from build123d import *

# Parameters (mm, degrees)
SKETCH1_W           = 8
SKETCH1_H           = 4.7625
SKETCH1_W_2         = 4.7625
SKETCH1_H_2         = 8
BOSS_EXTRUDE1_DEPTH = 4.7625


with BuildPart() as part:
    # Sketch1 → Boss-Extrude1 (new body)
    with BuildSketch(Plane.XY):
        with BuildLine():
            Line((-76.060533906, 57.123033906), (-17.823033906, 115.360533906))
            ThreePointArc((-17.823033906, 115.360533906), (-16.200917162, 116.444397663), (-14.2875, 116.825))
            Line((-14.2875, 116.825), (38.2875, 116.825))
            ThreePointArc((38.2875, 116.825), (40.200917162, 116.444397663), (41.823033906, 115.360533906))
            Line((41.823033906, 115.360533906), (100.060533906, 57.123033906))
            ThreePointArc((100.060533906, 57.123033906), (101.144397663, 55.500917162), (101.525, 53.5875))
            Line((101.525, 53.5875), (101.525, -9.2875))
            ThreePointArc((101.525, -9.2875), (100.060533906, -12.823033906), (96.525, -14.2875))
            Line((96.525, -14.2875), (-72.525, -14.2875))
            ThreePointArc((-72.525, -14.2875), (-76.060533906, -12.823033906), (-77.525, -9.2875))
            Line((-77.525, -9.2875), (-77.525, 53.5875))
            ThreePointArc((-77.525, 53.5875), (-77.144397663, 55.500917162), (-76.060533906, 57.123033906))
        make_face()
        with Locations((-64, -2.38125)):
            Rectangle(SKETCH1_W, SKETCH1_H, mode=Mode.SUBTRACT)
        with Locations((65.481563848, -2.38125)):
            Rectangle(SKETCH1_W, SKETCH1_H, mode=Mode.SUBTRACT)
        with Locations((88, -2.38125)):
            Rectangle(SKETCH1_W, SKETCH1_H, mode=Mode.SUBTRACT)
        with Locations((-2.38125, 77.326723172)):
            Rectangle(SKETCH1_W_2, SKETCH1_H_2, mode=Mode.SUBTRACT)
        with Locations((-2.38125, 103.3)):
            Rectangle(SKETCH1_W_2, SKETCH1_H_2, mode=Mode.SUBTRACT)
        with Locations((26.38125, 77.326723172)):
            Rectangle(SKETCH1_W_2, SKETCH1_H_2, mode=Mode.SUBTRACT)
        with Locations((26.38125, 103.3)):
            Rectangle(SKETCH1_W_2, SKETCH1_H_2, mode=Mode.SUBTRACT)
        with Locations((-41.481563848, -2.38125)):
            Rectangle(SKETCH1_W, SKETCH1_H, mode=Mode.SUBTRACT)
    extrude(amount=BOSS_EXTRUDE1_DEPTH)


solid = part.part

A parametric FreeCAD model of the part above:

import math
import FreeCAD as App
import Part
import Sketcher
Q = App.Units.Quantity

doc = App.newDocument("Part")
body = doc.addObject("PartDesign::Body", "Body")

# Sketch on XY plane
sketch1 = body.newObject("Sketcher::SketchObject", "Sketch")
sketch1.AttachmentSupport = (doc.getObject("XY_Plane"), [""])
sketch1.MapMode = "FlatFace"
sketch1.addGeometry([
    Part.LineSegment(App.Vector(-17.8, 115.4, 0), App.Vector(-76.1, 57.1, 0)),  # 0
    Part.ArcOfCircle(Part.Circle(App.Vector(-72.5, 53.6, 0), App.Vector(0, 0, 1), 5), math.radians(135), math.radians(180)),  # 1
    Part.LineSegment(App.Vector(-77.5, 53.6, 0), App.Vector(-77.5, -9.3, 0)),  # 2
    Part.ArcOfCircle(Part.Circle(App.Vector(-72.5, -9.3, 0), App.Vector(0, 0, 1), 5), math.radians(180), math.radians(270)),  # 3
    Part.LineSegment(App.Vector(-72.5, -14.3, 0), App.Vector(96.5, -14.3, 0)),  # 4
    Part.ArcOfCircle(Part.Circle(App.Vector(96.5, -9.3, 0), App.Vector(0, 0, 1), 5), math.radians(-90), math.radians(0)),  # 5
    Part.LineSegment(App.Vector(101.5, -9.3, 0), App.Vector(101.5, 53.6, 0)),  # 6
    Part.ArcOfCircle(Part.Circle(App.Vector(96.5, 53.6, 0), App.Vector(0, 0, 1), 5), math.radians(0), math.radians(45)),  # 7
    Part.LineSegment(App.Vector(100.1, 57.1, 0), App.Vector(41.8, 115.4, 0)),  # 8
    Part.ArcOfCircle(Part.Circle(App.Vector(38.3, 111.8, 0), App.Vector(0, 0, 1), 5), math.radians(45), math.radians(90)),  # 9
    Part.LineSegment(App.Vector(38.3, 116.8, 0), App.Vector(-14.3, 116.8, 0)),  # 10
    Part.ArcOfCircle(Part.Circle(App.Vector(-14.3, 111.8, 0), App.Vector(0, 0, 1), 5), math.radians(90), math.radians(135)),  # 11
    Part.LineSegment(App.Vector(84, -4.8, 0), App.Vector(84, 0, 0)),  # 12
    Part.LineSegment(App.Vector(84, 0, 0), App.Vector(92, 0, 0)),  # 13
    Part.LineSegment(App.Vector(92, 0, 0), App.Vector(92, -4.8, 0)),  # 14
    Part.LineSegment(App.Vector(92, -4.8, 0), App.Vector(84, -4.8, 0)),  # 15
    Part.LineSegment(App.Vector(61.5, -4.8, 0), App.Vector(61.5, 0, 0)),  # 16
    Part.LineSegment(App.Vector(61.5, 0, 0), App.Vector(69.5, 0, 0)),  # 17
    Part.LineSegment(App.Vector(69.5, 0, 0), App.Vector(69.5, -4.8, 0)),  # 18
    Part.LineSegment(App.Vector(69.5, -4.8, 0), App.Vector(61.5, -4.8, 0)),  # 19
    Part.LineSegment(App.Vector(-45.5, -4.8, 0), App.Vector(-45.5, 0, 0)),  # 20
    Part.LineSegment(App.Vector(-45.5, 0, 0), App.Vector(-37.5, 0, 0)),  # 21
    Part.LineSegment(App.Vector(-37.5, 0, 0), App.Vector(-37.5, -4.8, 0)),  # 22
    Part.LineSegment(App.Vector(-37.5, -4.8, 0), App.Vector(-45.5, -4.8, 0)),  # 23
    Part.LineSegment(App.Vector(-68, -4.8, 0), App.Vector(-68, 0, 0)),  # 24
    Part.LineSegment(App.Vector(-68, 0, 0), App.Vector(-60, 0, 0)),  # 25
    Part.LineSegment(App.Vector(-60, 0, 0), App.Vector(-60, -4.8, 0)),  # 26
    Part.LineSegment(App.Vector(-60, -4.8, 0), App.Vector(-68, -4.8, 0)),  # 27
    Part.LineSegment(App.Vector(24, 73.3, 0), App.Vector(24, 81.3, 0)),  # 28
    Part.LineSegment(App.Vector(24, 81.3, 0), App.Vector(28.8, 81.3, 0)),  # 29
    Part.LineSegment(App.Vector(28.8, 81.3, 0), App.Vector(28.8, 73.3, 0)),  # 30
    Part.LineSegment(App.Vector(28.8, 73.3, 0), App.Vector(24, 73.3, 0)),  # 31
    Part.LineSegment(App.Vector(24, 99.3, 0), App.Vector(24, 107.3, 0)),  # 32
    Part.LineSegment(App.Vector(24, 107.3, 0), App.Vector(28.8, 107.3, 0)),  # 33
    Part.LineSegment(App.Vector(28.8, 107.3, 0), App.Vector(28.8, 99.3, 0)),  # 34
    Part.LineSegment(App.Vector(28.8, 99.3, 0), App.Vector(24, 99.3, 0)),  # 35
    Part.LineSegment(App.Vector(-4.8, 73.3, 0), App.Vector(-4.8, 81.3, 0)),  # 36
    Part.LineSegment(App.Vector(-4.8, 81.3, 0), App.Vector(0, 81.3, 0)),  # 37
    Part.LineSegment(App.Vector(0, 81.3, 0), App.Vector(0, 73.3, 0)),  # 38
    Part.LineSegment(App.Vector(0, 73.3, 0), App.Vector(-4.8, 73.3, 0)),  # 39
    Part.LineSegment(App.Vector(-4.8, 99.3, 0), App.Vector(-4.8, 107.3, 0)),  # 40
    Part.LineSegment(App.Vector(-4.8, 107.3, 0), App.Vector(0, 107.3, 0)),  # 41
    Part.LineSegment(App.Vector(0, 107.3, 0), App.Vector(0, 99.3, 0)),  # 42
    Part.LineSegment(App.Vector(0, 99.3, 0), App.Vector(-4.8, 99.3, 0)),  # 43
], False)
sketch1.addConstraint([
    Sketcher.Constraint("Tangent", 0, 2, 1, 1),
    Sketcher.Constraint("Tangent", 1, 2, 2, 1),
    Sketcher.Constraint("Tangent", 2, 2, 3, 1),
    Sketcher.Constraint("Tangent", 3, 2, 4, 1),
    Sketcher.Constraint("Tangent", 4, 2, 5, 1),
    Sketcher.Constraint("Tangent", 5, 2, 6, 1),
    Sketcher.Constraint("Tangent", 6, 2, 7, 1),
    Sketcher.Constraint("Tangent", 7, 2, 8, 1),
    Sketcher.Constraint("Tangent", 8, 2, 9, 1),
    Sketcher.Constraint("Tangent", 9, 2, 10, 1),
    Sketcher.Constraint("Tangent", 10, 2, 11, 1),
    Sketcher.Constraint("Tangent", 11, 2, 0, 1),
    Sketcher.Constraint("Coincident", 12, 2, 13, 1),
    Sketcher.Constraint("Coincident", 13, 2, 14, 1),
    Sketcher.Constraint("Coincident", 14, 2, 15, 1),
    Sketcher.Constraint("Coincident", 15, 2, 12, 1),
    Sketcher.Constraint("Coincident", 16, 2, 17, 1),
    Sketcher.Constraint("Coincident", 17, 2, 18, 1),
    Sketcher.Constraint("Coincident", 18, 2, 19, 1),
    Sketcher.Constraint("Coincident", 19, 2, 16, 1),
    Sketcher.Constraint("Coincident", 20, 2, 21, 1),
    Sketcher.Constraint("Coincident", 21, 2, 22, 1),
    Sketcher.Constraint("Coincident", 22, 2, 23, 1),
    Sketcher.Constraint("Coincident", 23, 2, 20, 1),
    Sketcher.Constraint("Coincident", 24, 2, 25, 1),
    Sketcher.Constraint("Coincident", 25, 2, 26, 1),
    Sketcher.Constraint("Coincident", 26, 2, 27, 1),
    Sketcher.Constraint("Coincident", 27, 2, 24, 1),
    Sketcher.Constraint("Coincident", 28, 2, 29, 1),
    Sketcher.Constraint("Coincident", 29, 2, 30, 1),
    Sketcher.Constraint("Coincident", 30, 2, 31, 1),
    Sketcher.Constraint("Coincident", 31, 2, 28, 1),
    Sketcher.Constraint("Coincident", 32, 2, 33, 1),
    Sketcher.Constraint("Coincident", 33, 2, 34, 1),
    Sketcher.Constraint("Coincident", 34, 2, 35, 1),
    Sketcher.Constraint("Coincident", 35, 2, 32, 1),
    Sketcher.Constraint("Coincident", 36, 2, 37, 1),
    Sketcher.Constraint("Coincident", 37, 2, 38, 1),
    Sketcher.Constraint("Coincident", 38, 2, 39, 1),
    Sketcher.Constraint("Coincident", 39, 2, 36, 1),
    Sketcher.Constraint("Coincident", 40, 2, 41, 1),
    Sketcher.Constraint("Coincident", 41, 2, 42, 1),
    Sketcher.Constraint("Coincident", 42, 2, 43, 1),
    Sketcher.Constraint("Coincident", 43, 2, 40, 1),
    Sketcher.Constraint("Vertical", 2),
    Sketcher.Constraint("Horizontal", 4),
    Sketcher.Constraint("Vertical", 6),
    Sketcher.Constraint("Horizontal", 10),
    Sketcher.Constraint("Vertical", 12),
    Sketcher.Constraint("Horizontal", 13),
    Sketcher.Constraint("Vertical", 14),
    Sketcher.Constraint("Horizontal", 15),
    Sketcher.Constraint("Vertical", 16),
    Sketcher.Constraint("Horizontal", 17),
    Sketcher.Constraint("Vertical", 18),
    Sketcher.Constraint("Horizontal", 19),
    Sketcher.Constraint("Vertical", 20),
    Sketcher.Constraint("Horizontal", 21),
    Sketcher.Constraint("Vertical", 22),
    Sketcher.Constraint("Horizontal", 23),
    Sketcher.Constraint("Vertical", 24),
    Sketcher.Constraint("Horizontal", 25),
    Sketcher.Constraint("Vertical", 26),
    Sketcher.Constraint("Horizontal", 27),
    Sketcher.Constraint("Vertical", 28),
    Sketcher.Constraint("Horizontal", 29),
    Sketcher.Constraint("Vertical", 30),
    Sketcher.Constraint("Horizontal", 31),
    Sketcher.Constraint("Vertical", 32),
    Sketcher.Constraint("Horizontal", 33),
    Sketcher.Constraint("Vertical", 34),
    Sketcher.Constraint("Horizontal", 35),
    Sketcher.Constraint("Vertical", 36),
    Sketcher.Constraint("Horizontal", 37),
    Sketcher.Constraint("Vertical", 38),
    Sketcher.Constraint("Horizontal", 39),
    Sketcher.Constraint("Vertical", 40),
    Sketcher.Constraint("Horizontal", 41),
    Sketcher.Constraint("Vertical", 42),
    Sketcher.Constraint("Horizontal", 43),
    Sketcher.Constraint("Equal", 1, 3),
    Sketcher.Constraint("Equal", 3, 5),
    Sketcher.Constraint("Equal", 5, 7),
    Sketcher.Constraint("Equal", 7, 9),
    Sketcher.Constraint("Equal", 9, 11),
    Sketcher.Constraint("PointOnObject", 12, 2, -1),
    Sketcher.Constraint("PointOnObject", 16, 2, -1),
    Sketcher.Constraint("PointOnObject", 20, 2, -1),
    Sketcher.Constraint("PointOnObject", 24, 2, -1),
    Sketcher.Constraint("PointOnObject", 37, 2, -2),
    Sketcher.Constraint("PointOnObject", 41, 2, -2),
    Sketcher.Constraint("Perpendicular", 0, 8),
    Sketcher.Constraint("Horizontal", 1, 3, 7, 3),
    Sketcher.Constraint("Horizontal", 0, 2, 7, 2),
    Sketcher.Constraint("Horizontal", 15, 2, 18, 2),
    Sketcher.Constraint("Horizontal", 19, 2, 22, 2),
    Sketcher.Constraint("Horizontal", 23, 2, 26, 2),
    Sketcher.Constraint("Horizontal", 29, 2, 36, 2),
    Sketcher.Constraint("Horizontal", 31, 2, 38, 2),
    Sketcher.Constraint("Horizontal", 33, 2, 40, 2),
    Sketcher.Constraint("Horizontal", 35, 2, 42, 2),
    Sketcher.Constraint("Vertical", 31, 2, 32, 2),
    Sketcher.Constraint("Vertical", 30, 2, 33, 2),
    Sketcher.Constraint("Vertical", 39, 2, 40, 2),
    Sketcher.Constraint("Equal", 15, 17),
    Sketcher.Constraint("Equal", 19, 21),
    Sketcher.Constraint("Equal", 23, 25),
    Sketcher.Constraint("Equal", 35, 37),
    Sketcher.Constraint("Equal", 43, 12),
    Sketcher.Constraint("Equal", 27, 28),
    Sketcher.Constraint("Equal", 30, 32),
    Sketcher.Constraint("Radius", 1, Q("5 mm")),
    Sketcher.Constraint("DistanceX", 13, 1, 13, 2, Q("8 mm")),
    Sketcher.Constraint("DistanceX", -1, 1, 12, 2, Q("84 mm")),
    Sketcher.Constraint("DistanceX", 24, 2, -1, 1, Q("68 mm")),
    Sketcher.Constraint("DistanceX", -1, 1, 28, 2, Q("24 mm")),
    Sketcher.Constraint("DistanceX", 4, 1, 4, 2, Q("169.05 mm")),
    Sketcher.Constraint("DistanceY", -1, 1, 32, 2, Q("107.3 mm")),
    Sketcher.Constraint("DistanceX", 10, 2, 10, 1, Q("52.575 mm")),
    Sketcher.Constraint("DistanceY", 2, 2, 2, 1, Q("62.875 mm")),
    Sketcher.Constraint("DistanceX", 11, 3, 29, 2, Q("43.05 mm")),
    Sketcher.Constraint("DistanceX", 29, 1, 29, 2, Q("4.7625 mm")),
    Sketcher.Constraint("DistanceY", -1, 1, 9, 3, Q("111.825 mm")),
    Sketcher.Constraint("DistanceY", 28, 2, 8, 2, Q("34.033811 mm")),
    Sketcher.Constraint("DistanceX", -1, 1, 16, 2, Q("61.481564 mm")),
    Sketcher.Constraint("DistanceX", 20, 2, -1, 1, Q("45.481564 mm")),
])
pad1 = body.newObject("PartDesign::Pad", "Pad")
pad1.Profile = sketch1
pad1.Length = 4.7625

doc.recompute()
